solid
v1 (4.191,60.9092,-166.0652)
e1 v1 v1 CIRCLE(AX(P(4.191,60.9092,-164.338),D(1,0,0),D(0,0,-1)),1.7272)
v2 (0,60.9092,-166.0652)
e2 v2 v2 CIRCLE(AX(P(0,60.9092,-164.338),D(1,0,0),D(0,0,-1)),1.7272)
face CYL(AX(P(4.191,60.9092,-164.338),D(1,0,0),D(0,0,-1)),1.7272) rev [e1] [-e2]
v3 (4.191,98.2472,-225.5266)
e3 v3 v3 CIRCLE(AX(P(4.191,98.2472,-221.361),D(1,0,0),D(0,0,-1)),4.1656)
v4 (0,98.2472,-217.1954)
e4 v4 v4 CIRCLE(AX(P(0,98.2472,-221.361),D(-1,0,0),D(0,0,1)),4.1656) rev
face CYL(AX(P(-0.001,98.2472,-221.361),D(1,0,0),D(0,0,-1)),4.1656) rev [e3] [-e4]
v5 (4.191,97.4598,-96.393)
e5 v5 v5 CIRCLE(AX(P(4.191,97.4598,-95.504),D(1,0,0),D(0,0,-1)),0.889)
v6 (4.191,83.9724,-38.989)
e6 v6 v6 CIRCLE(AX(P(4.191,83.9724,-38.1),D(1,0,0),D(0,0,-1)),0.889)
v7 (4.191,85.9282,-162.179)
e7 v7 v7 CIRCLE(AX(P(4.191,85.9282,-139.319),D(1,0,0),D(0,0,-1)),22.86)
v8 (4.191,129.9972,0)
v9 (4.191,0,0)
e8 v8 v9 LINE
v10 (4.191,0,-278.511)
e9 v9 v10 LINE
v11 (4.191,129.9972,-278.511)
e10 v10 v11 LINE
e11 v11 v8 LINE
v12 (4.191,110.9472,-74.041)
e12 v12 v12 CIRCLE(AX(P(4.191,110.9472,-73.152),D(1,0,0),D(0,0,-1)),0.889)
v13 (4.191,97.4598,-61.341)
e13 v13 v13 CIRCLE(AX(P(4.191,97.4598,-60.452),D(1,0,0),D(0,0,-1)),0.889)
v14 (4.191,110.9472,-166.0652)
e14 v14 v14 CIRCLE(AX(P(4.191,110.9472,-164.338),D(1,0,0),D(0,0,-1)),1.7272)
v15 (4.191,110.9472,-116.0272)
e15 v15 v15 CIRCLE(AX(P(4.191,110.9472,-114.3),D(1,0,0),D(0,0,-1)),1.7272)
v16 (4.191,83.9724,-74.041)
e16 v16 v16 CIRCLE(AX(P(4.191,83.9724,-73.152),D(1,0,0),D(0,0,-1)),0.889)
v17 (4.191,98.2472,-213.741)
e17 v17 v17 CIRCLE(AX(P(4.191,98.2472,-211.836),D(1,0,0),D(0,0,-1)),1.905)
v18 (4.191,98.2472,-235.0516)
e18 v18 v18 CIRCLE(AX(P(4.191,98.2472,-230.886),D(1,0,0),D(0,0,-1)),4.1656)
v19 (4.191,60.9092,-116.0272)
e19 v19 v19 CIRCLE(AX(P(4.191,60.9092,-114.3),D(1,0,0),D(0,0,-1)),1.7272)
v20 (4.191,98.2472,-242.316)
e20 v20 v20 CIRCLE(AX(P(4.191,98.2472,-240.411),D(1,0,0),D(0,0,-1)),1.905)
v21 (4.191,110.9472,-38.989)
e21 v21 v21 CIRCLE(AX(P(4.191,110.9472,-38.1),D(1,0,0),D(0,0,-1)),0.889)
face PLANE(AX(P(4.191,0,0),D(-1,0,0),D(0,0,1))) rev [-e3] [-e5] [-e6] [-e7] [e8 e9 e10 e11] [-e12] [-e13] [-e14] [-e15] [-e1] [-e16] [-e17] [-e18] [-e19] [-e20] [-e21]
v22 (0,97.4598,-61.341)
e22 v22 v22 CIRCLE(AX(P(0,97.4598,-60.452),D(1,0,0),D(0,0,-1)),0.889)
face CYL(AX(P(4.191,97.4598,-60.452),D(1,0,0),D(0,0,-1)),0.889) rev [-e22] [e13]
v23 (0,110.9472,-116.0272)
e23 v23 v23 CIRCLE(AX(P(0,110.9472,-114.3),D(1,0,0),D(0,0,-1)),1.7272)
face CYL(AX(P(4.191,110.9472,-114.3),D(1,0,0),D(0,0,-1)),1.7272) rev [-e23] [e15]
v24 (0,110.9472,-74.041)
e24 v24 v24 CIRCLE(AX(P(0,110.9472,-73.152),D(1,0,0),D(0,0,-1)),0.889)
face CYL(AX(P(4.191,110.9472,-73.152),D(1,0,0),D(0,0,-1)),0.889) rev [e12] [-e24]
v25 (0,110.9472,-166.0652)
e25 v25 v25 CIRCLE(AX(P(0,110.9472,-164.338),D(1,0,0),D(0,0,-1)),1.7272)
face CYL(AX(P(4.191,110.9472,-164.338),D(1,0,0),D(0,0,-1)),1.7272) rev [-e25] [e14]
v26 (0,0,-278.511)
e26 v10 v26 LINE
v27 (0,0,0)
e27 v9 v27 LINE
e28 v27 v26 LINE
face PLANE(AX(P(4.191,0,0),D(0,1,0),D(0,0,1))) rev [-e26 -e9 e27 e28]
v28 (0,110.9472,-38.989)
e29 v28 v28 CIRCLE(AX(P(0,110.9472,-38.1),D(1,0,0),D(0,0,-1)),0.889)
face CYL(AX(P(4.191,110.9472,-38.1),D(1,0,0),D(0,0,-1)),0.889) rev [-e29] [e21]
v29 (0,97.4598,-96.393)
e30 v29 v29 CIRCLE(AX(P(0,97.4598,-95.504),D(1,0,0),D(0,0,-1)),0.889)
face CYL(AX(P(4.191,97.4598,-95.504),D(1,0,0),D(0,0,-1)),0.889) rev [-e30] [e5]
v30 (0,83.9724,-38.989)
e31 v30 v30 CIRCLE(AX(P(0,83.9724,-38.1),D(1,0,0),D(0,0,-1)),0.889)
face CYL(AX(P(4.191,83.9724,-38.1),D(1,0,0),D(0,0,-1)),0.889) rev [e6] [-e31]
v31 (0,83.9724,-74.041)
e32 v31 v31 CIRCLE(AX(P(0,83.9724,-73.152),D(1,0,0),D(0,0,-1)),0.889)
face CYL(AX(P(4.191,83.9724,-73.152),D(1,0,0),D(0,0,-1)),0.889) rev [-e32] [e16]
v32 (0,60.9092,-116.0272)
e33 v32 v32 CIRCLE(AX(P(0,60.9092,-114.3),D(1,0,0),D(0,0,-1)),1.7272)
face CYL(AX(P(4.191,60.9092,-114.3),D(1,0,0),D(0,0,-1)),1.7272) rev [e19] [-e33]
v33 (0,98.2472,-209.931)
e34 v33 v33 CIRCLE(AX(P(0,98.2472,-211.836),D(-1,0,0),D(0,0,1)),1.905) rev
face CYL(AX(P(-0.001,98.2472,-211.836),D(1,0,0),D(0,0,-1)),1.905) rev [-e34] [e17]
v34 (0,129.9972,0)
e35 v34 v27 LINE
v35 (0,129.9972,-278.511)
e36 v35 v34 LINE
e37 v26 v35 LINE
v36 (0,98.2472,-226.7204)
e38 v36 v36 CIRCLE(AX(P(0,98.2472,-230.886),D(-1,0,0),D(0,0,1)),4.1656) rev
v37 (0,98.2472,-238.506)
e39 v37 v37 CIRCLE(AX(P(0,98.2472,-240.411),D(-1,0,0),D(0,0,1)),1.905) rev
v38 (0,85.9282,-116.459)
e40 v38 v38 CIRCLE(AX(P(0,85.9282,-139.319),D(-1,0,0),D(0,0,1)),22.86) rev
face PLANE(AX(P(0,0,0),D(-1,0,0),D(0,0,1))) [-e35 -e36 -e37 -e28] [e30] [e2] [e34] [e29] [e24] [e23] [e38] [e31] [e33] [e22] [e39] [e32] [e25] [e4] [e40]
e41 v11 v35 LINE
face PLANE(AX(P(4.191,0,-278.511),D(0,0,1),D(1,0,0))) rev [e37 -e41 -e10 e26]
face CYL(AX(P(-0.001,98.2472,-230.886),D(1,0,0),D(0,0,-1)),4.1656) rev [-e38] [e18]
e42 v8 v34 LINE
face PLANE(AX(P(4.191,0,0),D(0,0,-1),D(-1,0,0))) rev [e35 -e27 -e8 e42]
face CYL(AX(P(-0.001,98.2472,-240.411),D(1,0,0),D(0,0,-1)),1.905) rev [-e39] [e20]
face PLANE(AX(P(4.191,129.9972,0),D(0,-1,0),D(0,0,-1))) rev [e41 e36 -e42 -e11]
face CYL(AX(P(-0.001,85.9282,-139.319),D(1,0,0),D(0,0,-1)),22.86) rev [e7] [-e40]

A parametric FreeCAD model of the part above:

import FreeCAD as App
import Part
import Sketcher
Q = App.Units.Quantity

doc = App.newDocument("Part")
body = doc.addObject("PartDesign::Body", "Body")

# Sketch on YZ plane
sketch1 = doc.addObject("Sketcher::SketchObject", "Sketch")
body.addObject(sketch1)
sketch1.AttachmentSupport = (doc.YZ_Plane, [""])
sketch1.MapMode = "FlatFace"
sketch1.addGeometry(Part.LineSegment(App.Vector(129.9972, 0, 0), App.Vector(0, 0, 0)), False)
sketch1.addGeometry(Part.LineSegment(App.Vector(0, 0, 0), App.Vector(0, -278.511, 0)), False)
sketch1.addGeometry(Part.LineSegment(App.Vector(0, -278.511, 0), App.Vector(129.9972, -278.511, 0)), False)
sketch1.addGeometry(Part.LineSegment(App.Vector(129.9972, -278.511, 0), App.Vector(129.9972, 0, 0)), False)
sketch1.addConstraint(Sketcher.Constraint("Coincident", 0, 2, 1, 1))
sketch1.addConstraint(Sketcher.Constraint("Coincident", 1, 2, 2, 1))
sketch1.addConstraint(Sketcher.Constraint("Coincident", 2, 2, 3, 1))
sketch1.addConstraint(Sketcher.Constraint("Coincident", 3, 2, 0, 1))
sketch1.addConstraint(Sketcher.Constraint("Horizontal", 0))
sketch1.addConstraint(Sketcher.Constraint("Vertical", 1))
sketch1.addConstraint(Sketcher.Constraint("Horizontal", 2))
sketch1.addConstraint(Sketcher.Constraint("Vertical", 3))
sketch1.addConstraint(Sketcher.Constraint("Coincident", 0, 2, -1, 1))
sketch1.addConstraint(Sketcher.Constraint("DistanceX", 0, 2, 0, 1, Q("5.118 in")))
sketch1.addConstraint(Sketcher.Constraint("DistanceY", 1, 2, 1, 1, Q("10.965 in")))
pad1 = doc.addObject("PartDesign::Pad", "Pad")
body.addObject(pad1)
pad1.Profile = sketch1
pad1.Length = Q("0.165 in")

# Sketch on YZ plane
sketch2 = doc.addObject("Sketcher::SketchObject", "Sketch001")
body.addObject(sketch2)
sketch2.AttachmentSupport = (doc.YZ_Plane, [""])
sketch2.MapMode = "FlatFace"
sketch2.AttachmentOffset = App.Placement(App.Vector(0, 0, 0.165 * 25.4), App.Rotation())
sketch2.addGeometry(Part.Circle(App.Vector(83.9724, -38.1, 0), App.Vector(0, 0, 1), 0.889), False)
sketch2.addGeometry(Part.Circle(App.Vector(110.9472, -38.1, 0), App.Vector(0, 0, 1), 0.889), False)
sketch2.addGeometry(Part.Circle(App.Vector(97.4598, -60.452, 0), App.Vector(0, 0, 1), 0.889), False)
sketch2.addGeometry(Part.Circle(App.Vector(110.9472, -73.152, 0), App.Vector(0, 0, 1), 0.889), False)
sketch2.addGeometry(Part.Circle(App.Vector(83.9724, -73.152, 0), App.Vector(0, 0, 1), 0.889), False)
sketch2.addGeometry(Part.Circle(App.Vector(97.4598, -95.504, 0), App.Vector(0, 0, 1), 0.889), False)
sketch2.addConstraint(Sketcher.Constraint("Equal", 0, 1))
sketch2.addConstraint(Sketcher.Constraint("Equal", 1, 2))
sketch2.addConstraint(Sketcher.Constraint("Equal", 2, 3))
sketch2.addConstraint(Sketcher.Constraint("Equal", 3, 4))
sketch2.addConstraint(Sketcher.Constraint("Equal", 4, 5))
sketch2.addConstraint(Sketcher.Constraint("Horizontal", 0, 3, 1, 3))
sketch2.addConstraint(Sketcher.Constraint("Horizontal", 3, 3, 4, 3))
sketch2.addConstraint(Sketcher.Constraint("Vertical", 1, 3, 3, 3))
sketch2.addConstraint(Sketcher.Constraint("Vertical", 0, 3, 4, 3))
sketch2.addConstraint(Sketcher.Constraint("Vertical", 2, 3, 5, 3))
sketch2.addConstraint(Sketcher.Constraint("Diameter", 0, Q("0.07 in")))
sketch2.addConstraint(Sketcher.Constraint("DistanceY", 0, 3, -1, 1, Q("1.5 in")))
sketch2.addConstraint(Sketcher.Constraint("DistanceY", 3, 3, 2, 3, Q("0.5 in")))
sketch2.addConstraint(Sketcher.Constraint("DistanceY", 2, 3, -1, 1, Q("2.38 in")))
sketch2.addConstraint(Sketcher.Constraint("DistanceY", 5, 3, -1, 1, Q("3.76 in")))
sketch2.addConstraint(Sketcher.Constraint("DistanceX", -1, 1, 0, 3, Q("3.306 in")))
sketch2.addConstraint(Sketcher.Constraint("DistanceX", -1, 1, 1, 3, Q("4.368 in")))
sketch2.addConstraint(Sketcher.Constraint("DistanceX", -1, 1, 2, 3, Q("3.837 in")))
doc.recompute()
hole = doc.addObject("PartDesign::Hole", "Hole")
body.addObject(hole)
hole.Profile = sketch2
hole.ThreadType = "None"
hole.Diameter = Q("0.07 in")
hole.DepthType = "ThroughAll"

# Sketch on YZ plane
sketch3 = doc.addObject("Sketcher::SketchObject", "Sketch002")
body.addObject(sketch3)
sketch3.AttachmentSupport = (doc.YZ_Plane, [""])
sketch3.MapMode = "FlatFace"
sketch3.AttachmentOffset = App.Placement(App.Vector(0, 0, 0.165 * 25.4), App.Rotation())
sketch3.addGeometry(Part.Circle(App.Vector(60.9092, -114.3, 0), App.Vector(0, 0, 1), 1.7272), False)
sketch3.addGeometry(Part.Circle(App.Vector(110.9472, -114.3, 0), App.Vector(0, 0, 1), 1.7272), False)
sketch3.addGeometry(Part.Circle(App.Vector(110.9472, -164.338, 0), App.Vector(0, 0, 1), 1.7272), False)
sketch3.addGeometry(Part.Circle(App.Vector(60.9092, -164.338, 0), App.Vector(0, 0, 1), 1.7272), False)
sketch3.addConstraint(Sketcher.Constraint("Equal", 0, 1))
sketch3.addConstraint(Sketcher.Constraint("Equal", 1, 2))
sketch3.addConstraint(Sketcher.Constraint("Equal", 2, 3))
sketch3.addConstraint(Sketcher.Constraint("Horizontal", 0, 3, 1, 3))
sketch3.addConstraint(Sketcher.Constraint("Horizontal", 2, 3, 3, 3))
sketch3.addConstraint(Sketcher.Constraint("Vertical", 1, 3, 2, 3))
sketch3.addConstraint(Sketcher.Constraint("Vertical", 0, 3, 3, 3))
sketch3.addConstraint(Sketcher.Constraint("Diameter", 0, Q("0.136 in")))
sketch3.addConstraint(Sketcher.Constraint("DistanceY", 0, 3, -1, 1, Q("4.5 in")))
sketch3.addConstraint(Sketcher.Constraint("DistanceY", 2, 3, -1, 1, Q("6.47 in")))
sketch3.addConstraint(Sketcher.Constraint("DistanceX", 0, 3, 1, 3, Q("1.97 in")))
sketch3.addConstraint(Sketcher.Constraint("DistanceX", -1, 1, 0, 3, Q("2.398 in")))
doc.recompute()
hole2 = doc.addObject("PartDesign::Hole", "Hole001")
body.addObject(hole2)
hole2.Profile = sketch3
hole2.ThreadType = "None"
hole2.Diameter = Q("0.136 in")
hole2.DepthType = "ThroughAll"

# Sketch on YZ plane
sketch4 = doc.addObject("Sketcher::SketchObject", "Sketch003")
body.addObject(sketch4)
sketch4.AttachmentSupport = (doc.YZ_Plane, [""])
sketch4.MapMode = "FlatFace"
sketch4.AttachmentOffset = App.Placement(App.Vector(0, 0, 0.165 * 25.4), App.Rotation())
sketch4.addGeometry(Part.Circle(App.Vector(85.9282, -139.319, 0), App.Vector(0, 0, 1), 22.86), False)
sketch4.addConstraint(Sketcher.Constraint("Diameter", 0, Q("1.8 in")))
sketch4.addConstraint(Sketcher.Constraint("DistanceX", -1, 1, 0, 3, Q("3.383 in")))
sketch4.addConstraint(Sketcher.Constraint("DistanceY", 0, 3, -1, 1, Q("5.485 in")))
pocket1 = doc.addObject("PartDesign::Pocket", "Pocket")
body.addObject(pocket1)
pocket1.Profile = sketch4
pocket1.Type = "UpToFirst"

# Sketch on YZ plane
sketch5 = doc.addObject("Sketcher::SketchObject", "Sketch004")
body.addObject(sketch5)
sketch5.AttachmentSupport = (doc.YZ_Plane, [""])
sketch5.MapMode = "FlatFace"
sketch5.AttachmentOffset = App.Placement(App.Vector(0, 0, 0.165 * 25.4), App.Rotation())
sketch5.addGeometry(Part.Circle(App.Vector(98.2472, -221.361, 0), App.Vector(0, 0, 1), 4.1656), False)
sketch5.addConstraint(Sketcher.Constraint("Diameter", 0, Q("0.328 in")))
sketch5.addConstraint(Sketcher.Constraint("DistanceX", -1, 1, 0, 3, Q("3.868 in")))
sketch5.addConstraint(Sketcher.Constraint("DistanceY", 0, 3, -1, 1, Q("8.715 in")))
pocket2 = doc.addObject("PartDesign::Pocket", "Pocket001")
body.addObject(pocket2)
pocket2.Profile = sketch5
pocket2.Type = "UpToFirst"

# Sketch on YZ plane
sketch6 = doc.addObject("Sketcher::SketchObject", "Sketch005")
body.addObject(sketch6)
sketch6.AttachmentSupport = (doc.YZ_Plane, [""])
sketch6.MapMode = "FlatFace"
sketch6.AttachmentOffset = App.Placement(App.Vector(0, 0, 0.165 * 25.4), App.Rotation())
sketch6.addGeometry(Part.Circle(App.Vector(98.2472, -211.836, 0), App.Vector(0, 0, 1), 1.905), False)
sketch6.addConstraint(Sketcher.Constraint("Diameter", 0, Q("0.15 in")))
sketch6.addConstraint(Sketcher.Constraint("DistanceY", 0, 3, -1, 1, Q("8.34 in")))
sketch6.addConstraint(Sketcher.Constraint("DistanceX", -1, 1, 0, 3, Q("3.868 in")))
pocket3 = doc.addObject("PartDesign::Pocket", "Pocket002")
body.addObject(pocket3)
pocket3.Profile = sketch6
pocket3.Type = "UpToFirst"

# Sketch on YZ plane
sketch7 = doc.addObject("Sketcher::SketchObject", "Sketch006")
body.addObject(sketch7)
sketch7.AttachmentSupport = (doc.YZ_Plane, [""])
sketch7.MapMode = "FlatFace"
sketch7.AttachmentOffset = App.Placement(App.Vector(0, 0, 0.165 * 25.4), App.Rotation())
sketch7.addGeometry(Part.Circle(App.Vector(98.2472, -230.886, 0), App.Vector(0, 0, 1), 4.1656), False)
sketch7.addConstraint(Sketcher.Constraint("Diameter", 0, Q("0.328 in")))
sketch7.addConstraint(Sketcher.Constraint("DistanceY", 0, 3, -1, 1, Q("9.09 in")))
sketch7.addConstraint(Sketcher.Constraint("DistanceX", -1, 1, 0, 3, Q("3.868 in")))
pocket4 = doc.addObject("PartDesign::Pocket", "Pocket003")
body.addObject(pocket4)
pocket4.Profile = sketch7
pocket4.Type = "UpToFirst"

# Sketch on YZ plane
sketch8 = doc.addObject("Sketcher::SketchObject", "Sketch007")
body.addObject(sketch8)
sketch8.AttachmentSupport = (doc.YZ_Plane, [""])
sketch8.MapMode = "FlatFace"
sketch8.AttachmentOffset = App.Placement(App.Vector(0, 0, 0.165 * 25.4), App.Rotation())
sketch8.addGeometry(Part.Circle(App.Vector(98.2472, -240.411, 0), App.Vector(0, 0, 1), 1.905), False)
sketch8.addConstraint(Sketcher.Constraint("Diameter", 0, Q("0.15 in")))
sketch8.addConstraint(Sketcher.Constraint("DistanceX", -1, 1, 0, 3, Q("3.868 in")))
sketch8.addConstraint(Sketcher.Constraint("DistanceY", 0, 3, -1, 1, Q("9.465 in")))
pocket5 = doc.addObject("PartDesign::Pocket", "Pocket004")
body.addObject(pocket5)
pocket5.Profile = sketch8
pocket5.Type = "UpToFirst"

doc.recompute()
